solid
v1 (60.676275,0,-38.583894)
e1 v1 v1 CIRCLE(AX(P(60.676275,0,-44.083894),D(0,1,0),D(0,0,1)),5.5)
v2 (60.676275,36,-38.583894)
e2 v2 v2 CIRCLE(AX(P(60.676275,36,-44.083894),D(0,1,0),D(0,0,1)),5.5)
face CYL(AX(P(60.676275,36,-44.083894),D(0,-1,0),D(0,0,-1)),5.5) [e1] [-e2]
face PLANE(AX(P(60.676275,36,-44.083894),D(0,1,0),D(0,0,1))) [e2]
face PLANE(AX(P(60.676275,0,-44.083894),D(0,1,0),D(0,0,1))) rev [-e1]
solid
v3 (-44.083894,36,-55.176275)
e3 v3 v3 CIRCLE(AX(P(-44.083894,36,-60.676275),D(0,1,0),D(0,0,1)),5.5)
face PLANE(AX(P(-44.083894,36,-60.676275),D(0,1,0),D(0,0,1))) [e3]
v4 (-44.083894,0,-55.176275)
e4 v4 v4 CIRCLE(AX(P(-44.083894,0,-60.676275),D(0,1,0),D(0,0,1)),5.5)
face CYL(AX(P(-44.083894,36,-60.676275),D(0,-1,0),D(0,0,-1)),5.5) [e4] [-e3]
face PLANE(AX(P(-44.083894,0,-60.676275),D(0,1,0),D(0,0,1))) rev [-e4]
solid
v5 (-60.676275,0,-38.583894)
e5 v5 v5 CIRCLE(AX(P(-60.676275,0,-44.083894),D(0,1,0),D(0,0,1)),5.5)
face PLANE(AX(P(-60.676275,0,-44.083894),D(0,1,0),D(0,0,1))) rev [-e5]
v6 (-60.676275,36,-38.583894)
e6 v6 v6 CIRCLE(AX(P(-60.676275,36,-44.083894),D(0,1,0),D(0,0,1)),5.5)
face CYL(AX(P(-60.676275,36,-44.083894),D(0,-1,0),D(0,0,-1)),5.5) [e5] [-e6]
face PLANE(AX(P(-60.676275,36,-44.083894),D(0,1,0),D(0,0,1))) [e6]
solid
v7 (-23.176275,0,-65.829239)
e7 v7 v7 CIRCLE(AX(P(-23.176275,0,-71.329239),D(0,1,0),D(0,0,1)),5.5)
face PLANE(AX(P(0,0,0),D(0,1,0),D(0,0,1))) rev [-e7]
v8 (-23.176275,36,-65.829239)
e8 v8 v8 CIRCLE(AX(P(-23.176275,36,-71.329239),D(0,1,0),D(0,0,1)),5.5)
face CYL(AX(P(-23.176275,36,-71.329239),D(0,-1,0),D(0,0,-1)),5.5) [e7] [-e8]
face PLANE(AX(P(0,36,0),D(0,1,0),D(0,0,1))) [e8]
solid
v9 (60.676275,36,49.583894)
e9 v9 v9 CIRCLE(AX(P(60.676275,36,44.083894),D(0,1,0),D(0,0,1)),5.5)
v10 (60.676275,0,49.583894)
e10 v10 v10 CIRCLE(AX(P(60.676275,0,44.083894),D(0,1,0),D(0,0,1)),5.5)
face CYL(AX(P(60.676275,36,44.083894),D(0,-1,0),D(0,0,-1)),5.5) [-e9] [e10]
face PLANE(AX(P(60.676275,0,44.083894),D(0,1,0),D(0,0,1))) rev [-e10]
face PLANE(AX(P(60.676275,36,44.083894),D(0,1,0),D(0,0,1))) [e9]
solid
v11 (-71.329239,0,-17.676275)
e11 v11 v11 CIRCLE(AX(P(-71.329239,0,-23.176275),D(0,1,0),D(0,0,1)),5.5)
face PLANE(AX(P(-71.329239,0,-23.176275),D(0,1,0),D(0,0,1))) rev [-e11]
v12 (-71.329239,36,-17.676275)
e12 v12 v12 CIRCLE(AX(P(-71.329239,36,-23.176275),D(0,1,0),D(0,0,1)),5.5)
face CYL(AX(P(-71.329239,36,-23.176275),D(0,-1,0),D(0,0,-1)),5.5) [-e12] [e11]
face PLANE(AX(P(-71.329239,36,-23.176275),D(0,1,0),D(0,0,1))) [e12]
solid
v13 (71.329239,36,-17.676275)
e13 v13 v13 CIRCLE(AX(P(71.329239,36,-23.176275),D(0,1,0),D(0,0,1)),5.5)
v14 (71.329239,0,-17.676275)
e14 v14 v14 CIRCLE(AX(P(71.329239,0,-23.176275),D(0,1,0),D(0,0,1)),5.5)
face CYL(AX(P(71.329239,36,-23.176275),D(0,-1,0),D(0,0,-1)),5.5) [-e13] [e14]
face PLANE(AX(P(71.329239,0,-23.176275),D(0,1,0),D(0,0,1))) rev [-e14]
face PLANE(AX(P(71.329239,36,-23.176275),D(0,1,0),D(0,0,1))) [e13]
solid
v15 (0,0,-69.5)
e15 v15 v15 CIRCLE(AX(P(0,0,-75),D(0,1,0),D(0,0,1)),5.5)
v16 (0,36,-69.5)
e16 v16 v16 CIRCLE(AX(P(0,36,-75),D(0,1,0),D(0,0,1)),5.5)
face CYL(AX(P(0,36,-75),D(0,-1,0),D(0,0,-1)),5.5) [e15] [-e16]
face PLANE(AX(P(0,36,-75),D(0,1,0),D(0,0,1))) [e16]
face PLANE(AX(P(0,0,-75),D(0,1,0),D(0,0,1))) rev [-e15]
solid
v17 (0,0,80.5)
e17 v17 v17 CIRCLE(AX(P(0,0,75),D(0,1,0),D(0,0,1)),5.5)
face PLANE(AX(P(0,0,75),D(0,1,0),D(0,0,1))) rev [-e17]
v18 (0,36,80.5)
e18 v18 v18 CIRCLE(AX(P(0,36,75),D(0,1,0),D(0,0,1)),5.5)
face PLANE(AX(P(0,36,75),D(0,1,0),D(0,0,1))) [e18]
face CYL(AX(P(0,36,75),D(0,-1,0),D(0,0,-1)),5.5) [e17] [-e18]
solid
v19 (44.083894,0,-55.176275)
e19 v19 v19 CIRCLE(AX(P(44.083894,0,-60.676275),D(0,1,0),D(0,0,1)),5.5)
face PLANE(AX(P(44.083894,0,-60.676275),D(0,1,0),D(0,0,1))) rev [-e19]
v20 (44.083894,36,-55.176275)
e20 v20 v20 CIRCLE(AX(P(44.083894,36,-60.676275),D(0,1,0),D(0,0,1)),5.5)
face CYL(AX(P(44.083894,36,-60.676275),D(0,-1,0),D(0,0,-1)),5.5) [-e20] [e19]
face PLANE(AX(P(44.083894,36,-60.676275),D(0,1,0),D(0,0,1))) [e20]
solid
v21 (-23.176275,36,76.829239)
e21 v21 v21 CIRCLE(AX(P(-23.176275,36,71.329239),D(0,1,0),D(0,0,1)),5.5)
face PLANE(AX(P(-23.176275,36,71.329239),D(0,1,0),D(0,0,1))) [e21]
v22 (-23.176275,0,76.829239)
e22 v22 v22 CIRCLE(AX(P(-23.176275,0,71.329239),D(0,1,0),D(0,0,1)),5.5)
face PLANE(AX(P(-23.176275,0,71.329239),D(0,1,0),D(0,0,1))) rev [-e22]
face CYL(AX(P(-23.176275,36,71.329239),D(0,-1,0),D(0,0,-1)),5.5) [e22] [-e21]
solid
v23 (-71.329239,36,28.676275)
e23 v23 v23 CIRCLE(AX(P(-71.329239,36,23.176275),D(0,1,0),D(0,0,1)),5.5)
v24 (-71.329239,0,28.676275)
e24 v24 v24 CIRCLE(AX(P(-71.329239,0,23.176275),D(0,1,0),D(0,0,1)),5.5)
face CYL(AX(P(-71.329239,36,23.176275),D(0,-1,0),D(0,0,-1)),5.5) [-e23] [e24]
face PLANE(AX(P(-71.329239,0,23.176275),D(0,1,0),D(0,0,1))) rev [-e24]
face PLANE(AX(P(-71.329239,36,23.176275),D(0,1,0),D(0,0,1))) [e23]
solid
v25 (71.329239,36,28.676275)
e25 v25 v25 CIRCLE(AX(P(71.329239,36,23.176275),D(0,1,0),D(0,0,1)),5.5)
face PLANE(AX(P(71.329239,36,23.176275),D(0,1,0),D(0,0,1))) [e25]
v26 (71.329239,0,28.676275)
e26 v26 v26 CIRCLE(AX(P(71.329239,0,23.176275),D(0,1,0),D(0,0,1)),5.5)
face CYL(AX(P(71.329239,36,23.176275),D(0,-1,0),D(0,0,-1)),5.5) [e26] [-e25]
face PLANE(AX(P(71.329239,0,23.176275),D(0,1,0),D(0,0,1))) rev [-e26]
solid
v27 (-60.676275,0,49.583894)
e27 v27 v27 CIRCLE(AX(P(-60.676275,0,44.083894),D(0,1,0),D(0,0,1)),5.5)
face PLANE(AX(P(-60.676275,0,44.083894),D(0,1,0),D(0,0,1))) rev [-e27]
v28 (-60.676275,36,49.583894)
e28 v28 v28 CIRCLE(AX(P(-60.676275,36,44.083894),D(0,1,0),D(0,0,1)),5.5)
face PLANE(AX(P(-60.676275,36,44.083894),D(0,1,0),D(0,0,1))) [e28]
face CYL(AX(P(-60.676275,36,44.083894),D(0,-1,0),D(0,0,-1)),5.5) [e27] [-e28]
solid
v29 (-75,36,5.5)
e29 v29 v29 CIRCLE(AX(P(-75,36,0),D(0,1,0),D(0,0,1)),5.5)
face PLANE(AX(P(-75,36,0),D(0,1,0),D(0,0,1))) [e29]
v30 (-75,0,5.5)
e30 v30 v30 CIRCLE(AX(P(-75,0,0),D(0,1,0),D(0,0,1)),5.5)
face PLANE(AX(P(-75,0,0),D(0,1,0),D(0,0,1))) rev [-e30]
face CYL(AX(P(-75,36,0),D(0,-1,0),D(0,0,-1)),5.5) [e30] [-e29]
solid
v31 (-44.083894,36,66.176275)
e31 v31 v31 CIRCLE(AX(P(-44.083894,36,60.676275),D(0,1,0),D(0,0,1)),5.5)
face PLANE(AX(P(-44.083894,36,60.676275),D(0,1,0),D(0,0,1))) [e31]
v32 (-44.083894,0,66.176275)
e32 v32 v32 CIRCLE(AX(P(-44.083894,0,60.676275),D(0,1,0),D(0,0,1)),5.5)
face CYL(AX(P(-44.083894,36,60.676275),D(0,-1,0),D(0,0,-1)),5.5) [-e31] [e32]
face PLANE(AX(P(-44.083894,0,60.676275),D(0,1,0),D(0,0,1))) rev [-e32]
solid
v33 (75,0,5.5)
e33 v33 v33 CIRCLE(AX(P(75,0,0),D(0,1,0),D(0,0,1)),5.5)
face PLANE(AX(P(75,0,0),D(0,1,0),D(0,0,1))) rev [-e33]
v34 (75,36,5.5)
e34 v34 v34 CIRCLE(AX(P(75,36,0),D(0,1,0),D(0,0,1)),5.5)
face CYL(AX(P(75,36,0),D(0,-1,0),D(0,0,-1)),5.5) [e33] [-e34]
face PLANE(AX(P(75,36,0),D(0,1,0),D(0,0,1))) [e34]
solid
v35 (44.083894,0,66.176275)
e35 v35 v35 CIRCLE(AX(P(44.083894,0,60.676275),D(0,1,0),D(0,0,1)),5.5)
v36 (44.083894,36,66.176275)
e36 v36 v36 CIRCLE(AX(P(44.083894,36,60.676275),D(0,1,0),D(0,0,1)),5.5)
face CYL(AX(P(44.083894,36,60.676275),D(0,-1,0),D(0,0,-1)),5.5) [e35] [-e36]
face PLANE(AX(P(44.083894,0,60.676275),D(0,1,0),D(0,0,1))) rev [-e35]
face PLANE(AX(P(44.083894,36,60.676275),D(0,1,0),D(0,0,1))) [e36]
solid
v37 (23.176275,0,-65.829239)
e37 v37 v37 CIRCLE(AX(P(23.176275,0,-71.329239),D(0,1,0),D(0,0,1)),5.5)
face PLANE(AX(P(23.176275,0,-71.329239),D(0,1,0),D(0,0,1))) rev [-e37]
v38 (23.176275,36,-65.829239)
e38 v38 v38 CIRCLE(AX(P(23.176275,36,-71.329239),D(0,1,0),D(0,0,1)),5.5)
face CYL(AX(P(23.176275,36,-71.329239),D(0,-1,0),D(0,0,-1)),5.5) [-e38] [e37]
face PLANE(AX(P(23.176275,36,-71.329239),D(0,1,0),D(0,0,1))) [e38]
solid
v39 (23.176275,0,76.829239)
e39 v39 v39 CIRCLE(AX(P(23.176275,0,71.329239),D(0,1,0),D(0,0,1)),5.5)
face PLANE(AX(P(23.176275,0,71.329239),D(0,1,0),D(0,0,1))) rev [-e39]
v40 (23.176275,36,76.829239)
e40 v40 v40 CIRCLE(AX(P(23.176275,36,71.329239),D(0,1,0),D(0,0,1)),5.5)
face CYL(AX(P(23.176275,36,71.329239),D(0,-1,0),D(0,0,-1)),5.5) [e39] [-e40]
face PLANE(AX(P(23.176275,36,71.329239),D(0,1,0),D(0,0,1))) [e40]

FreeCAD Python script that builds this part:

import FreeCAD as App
import Part
import Sketcher
from FreeCAD import Vector
Q = App.Units.Quantity

doc = App.newDocument("Part")
body = doc.addObject("PartDesign::Body", "Body")

# Sketch on XZ plane
sketch1 = doc.addObject("Sketcher::SketchObject", "Sketch")
body.addObject(sketch1)
sketch1.AttachmentSupport = (doc.XZ_Plane, [""])
sketch1.MapMode = "FlatFace"
sketch1.addGeometry(Part.Circle(Vector(75, 0, 0), Vector(0, 0, 1), 6), False)
sketch1.addConstraint([
    Sketcher.Constraint("PointOnObject", 0, 3, -1),
    Sketcher.Constraint("Diameter", 0, Q("11 mm")),
    Sketcher.Constraint("DistanceX", -1, 1, 0, 3, Q("75 mm")),
])
pad1 = doc.addObject("PartDesign::Pad", "Pad")
body.addObject(pad1)
pad1.Profile = sketch1
pad1.Length = 36
pad1.Reversed = True
body2 = doc.addObject("PartDesign::Body", "Body001")

# Sketch on XZ plane
sketch2 = doc.addObject("Sketcher::SketchObject", "Sketch001")
body2.addObject(sketch2)
sketch2.AttachmentSupport = (doc.getObject("XZ_Plane001"), [""])
sketch2.MapMode = "FlatFace"
sketch2.addGeometry(Part.Circle(Vector(71, 23, 0), Vector(0, 0, 1), 6), False)
sketch2.addConstraint([
    Sketcher.Constraint("Diameter", 0, Q("11 mm")),
    Sketcher.Constraint("DistanceX", -1, 1, 0, 3, Q("71.329239 mm")),
    Sketcher.Constraint("DistanceY", -1, 1, 0, 3, Q("23.176275 mm")),
])
pad2 = doc.addObject("PartDesign::Pad", "Pad001")
body2.addObject(pad2)
pad2.Profile = sketch2
pad2.Length = 36
pad2.Reversed = True
body3 = doc.addObject("PartDesign::Body", "Body002")

# Sketch on XZ plane
sketch3 = doc.addObject("Sketcher::SketchObject", "Sketch002")
body3.addObject(sketch3)
sketch3.AttachmentSupport = (doc.getObject("XZ_Plane002"), [""])
sketch3.MapMode = "FlatFace"
sketch3.addGeometry(Part.Circle(Vector(61, 44, 0), Vector(0, 0, 1), 6), False)
sketch3.addConstraint([
    Sketcher.Constraint("Diameter", 0, Q("11 mm")),
    Sketcher.Constraint("DistanceX", -1, 1, 0, 3, Q("60.676275 mm")),
    Sketcher.Constraint("DistanceY", -1, 1, 0, 3, Q("44.083894 mm")),
])
pad3 = doc.addObject("PartDesign::Pad", "Pad002")
body3.addObject(pad3)
pad3.Profile = sketch3
pad3.Length = 36
pad3.Reversed = True
body4 = doc.addObject("PartDesign::Body", "Body003")

# Sketch on XZ plane
sketch4 = doc.addObject("Sketcher::SketchObject", "Sketch003")
body4.addObject(sketch4)
sketch4.AttachmentSupport = (doc.getObject("XZ_Plane003"), [""])
sketch4.MapMode = "FlatFace"
sketch4.addGeometry(Part.Circle(Vector(44, 61, 0), Vector(0, 0, 1), 6), False)
sketch4.addConstraint([
    Sketcher.Constraint("Diameter", 0, Q("11 mm")),
    Sketcher.Constraint("DistanceX", -1, 1, 0, 3, Q("44.083894 mm")),
    Sketcher.Constraint("DistanceY", -1, 1, 0, 3, Q("60.676275 mm")),
])
pad4 = doc.addObject("PartDesign::Pad", "Pad003")
body4.addObject(pad4)
pad4.Profile = sketch4
pad4.Length = 36
pad4.Reversed = True
body5 = doc.addObject("PartDesign::Body", "Body004")

# Sketch on XZ plane
sketch5 = doc.addObject("Sketcher::SketchObject", "Sketch004")
body5.addObject(sketch5)
sketch5.AttachmentSupport = (doc.getObject("XZ_Plane004"), [""])
sketch5.MapMode = "FlatFace"
sketch5.addGeometry(Part.Circle(Vector(23, 71, 0), Vector(0, 0, 1), 6), False)
sketch5.addConstraint([
    Sketcher.Constraint("Diameter", 0, Q("11 mm")),
    Sketcher.Constraint("DistanceY", -1, 1, 0, 3, Q("71.329239 mm")),
    Sketcher.Constraint("DistanceX", -1, 1, 0, 3, Q("23.176275 mm")),
])
pad5 = doc.addObject("PartDesign::Pad", "Pad004")
body5.addObject(pad5)
pad5.Profile = sketch5
pad5.Length = 36
pad5.Reversed = True
body6 = doc.addObject("PartDesign::Body", "Body005")

# Sketch on XZ plane
sketch6 = doc.addObject("Sketcher::SketchObject", "Sketch005")
body6.addObject(sketch6)
sketch6.AttachmentSupport = (doc.getObject("XZ_Plane005"), [""])
sketch6.MapMode = "FlatFace"
sketch6.addGeometry(Part.Circle(Vector(0, 75, 0), Vector(0, 0, 1), 6), False)
sketch6.addConstraint([
    Sketcher.Constraint("PointOnObject", 0, 3, -2),
    Sketcher.Constraint("Diameter", 0, Q("11 mm")),
    Sketcher.Constraint("DistanceY", -1, 1, 0, 3, Q("75 mm")),
])
pad6 = doc.addObject("PartDesign::Pad", "Pad005")
body6.addObject(pad6)
pad6.Profile = sketch6
pad6.Length = 36
pad6.Reversed = True
body7 = doc.addObject("PartDesign::Body", "Body006")

# Sketch on XZ plane
sketch7 = doc.addObject("Sketcher::SketchObject", "Sketch006")
body7.addObject(sketch7)
sketch7.AttachmentSupport = (doc.getObject("XZ_Plane006"), [""])
sketch7.MapMode = "FlatFace"
sketch7.addGeometry(Part.Circle(Vector(-23, 71, 0), Vector(0, 0, 1), 6), False)
sketch7.addConstraint([
    Sketcher.Constraint("Diameter", 0, Q("11 mm")),
    Sketcher.Constraint("DistanceY", -1, 1, 0, 3, Q("71.329239 mm")),
    Sketcher.Constraint("DistanceX", 0, 3, -1, 1, Q("23.176275 mm")),
])
pad7 = doc.addObject("PartDesign::Pad", "Pad006")
body7.addObject(pad7)
pad7.Profile = sketch7
pad7.Length = 36
pad7.Reversed = True
body8 = doc.addObject("PartDesign::Body", "Body007")

# Sketch on XZ plane
sketch8 = doc.addObject("Sketcher::SketchObject", "Sketch007")
body8.addObject(sketch8)
sketch8.AttachmentSupport = (doc.getObject("XZ_Plane007"), [""])
sketch8.MapMode = "FlatFace"
sketch8.addGeometry(Part.Circle(Vector(-44, 61, 0), Vector(0, 0, 1), 6), False)
sketch8.addConstraint([
    Sketcher.Constraint("Diameter", 0, Q("11 mm")),
    Sketcher.Constraint("DistanceX", 0, 3, -1, 1, Q("44.083894 mm")),
    Sketcher.Constraint("DistanceY", -1, 1, 0, 3, Q("60.676275 mm")),
])
pad8 = doc.addObject("PartDesign::Pad", "Pad007")
body8.addObject(pad8)
pad8.Profile = sketch8
pad8.Length = 36
pad8.Reversed = True
body9 = doc.addObject("PartDesign::Body", "Body008")

# Sketch on XZ plane
sketch9 = doc.addObject("Sketcher::SketchObject", "Sketch008")
body9.addObject(sketch9)
sketch9.AttachmentSupport = (doc.getObject("XZ_Plane008"), [""])
sketch9.MapMode = "FlatFace"
sketch9.addGeometry(Part.Circle(Vector(-61, 44, 0), Vector(0, 0, 1), 6), False)
sketch9.addConstraint([
    Sketcher.Constraint("Diameter", 0, Q("11 mm")),
    Sketcher.Constraint("DistanceX", 0, 3, -1, 1, Q("60.676275 mm")),
    Sketcher.Constraint("DistanceY", -1, 1, 0, 3, Q("44.083894 mm")),
])
pad9 = doc.addObject("PartDesign::Pad", "Pad008")
body9.addObject(pad9)
pad9.Profile = sketch9
pad9.Length = 36
pad9.Reversed = True
body10 = doc.addObject("PartDesign::Body", "Body009")

# Sketch on XZ plane
sketch10 = doc.addObject("Sketcher::SketchObject", "Sketch009")
body10.addObject(sketch10)
sketch10.AttachmentSupport = (doc.getObject("XZ_Plane009"), [""])
sketch10.MapMode = "FlatFace"
sketch10.addGeometry(Part.Circle(Vector(-71, 23, 0), Vector(0, 0, 1), 6), False)
sketch10.addConstraint([
    Sketcher.Constraint("Diameter", 0, Q("11 mm")),
    Sketcher.Constraint("DistanceX", 0, 3, -1, 1, Q("71.329239 mm")),
    Sketcher.Constraint("DistanceY", -1, 1, 0, 3, Q("23.176275 mm")),
])
pad10 = doc.addObject("PartDesign::Pad", "Pad009")
body10.addObject(pad10)
pad10.Profile = sketch10
pad10.Length = 36
pad10.Reversed = True
body11 = doc.addObject("PartDesign::Body", "Body010")

# Sketch on XZ plane
sketch11 = doc.addObject("Sketcher::SketchObject", "Sketch010")
body11.addObject(sketch11)
sketch11.AttachmentSupport = (doc.getObject("XZ_Plane010"), [""])
sketch11.MapMode = "FlatFace"
sketch11.addGeometry(Part.Circle(Vector(-75, 0, 0), Vector(0, 0, 1), 6), False)
sketch11.addConstraint([
    Sketcher.Constraint("PointOnObject", 0, 3, -1),
    Sketcher.Constraint("Diameter", 0, Q("11 mm")),
    Sketcher.Constraint("DistanceX", 0, 3, -1, 1, Q("75 mm")),
])
pad11 = doc.addObject("PartDesign::Pad", "Pad010")
body11.addObject(pad11)
pad11.Profile = sketch11
pad11.Length = 36
pad11.Reversed = True
body12 = doc.addObject("PartDesign::Body", "Body011")

# Sketch on XZ plane
sketch12 = doc.addObject("Sketcher::SketchObject", "Sketch011")
body12.addObject(sketch12)
sketch12.AttachmentSupport = (doc.getObject("XZ_Plane011"), [""])
sketch12.MapMode = "FlatFace"
sketch12.addGeometry(Part.Circle(Vector(-71, -23, 0), Vector(0, 0, 1), 6), False)
sketch12.addConstraint([
    Sketcher.Constraint("Diameter", 0, Q("11 mm")),
    Sketcher.Constraint("DistanceX", 0, 3, -1, 1, Q("71.329239 mm")),
    Sketcher.Constraint("DistanceY", 0, 3, -1, 1, Q("23.176275 mm")),
])
pad12 = doc.addObject("PartDesign::Pad", "Pad011")
body12.addObject(pad12)
pad12.Profile = sketch12
pad12.Length = 36
pad12.Reversed = True
body13 = doc.addObject("PartDesign::Body", "Body012")

# Sketch on XZ plane
sketch13 = doc.addObject("Sketcher::SketchObject", "Sketch012")
body13.addObject(sketch13)
sketch13.AttachmentSupport = (doc.getObject("XZ_Plane012"), [""])
sketch13.MapMode = "FlatFace"
sketch13.addGeometry(Part.Circle(Vector(-61, -44, 0), Vector(0, 0, 1), 6), False)
sketch13.addConstraint([
    Sketcher.Constraint("Diameter", 0, Q("11 mm")),
    Sketcher.Constraint("DistanceX", 0, 3, -1, 1, Q("60.676275 mm")),
    Sketcher.Constraint("DistanceY", 0, 3, -1, 1, Q("44.083894 mm")),
])
pad13 = doc.addObject("PartDesign::Pad", "Pad012")
body13.addObject(pad13)
pad13.Profile = sketch13
pad13.Length = 36
pad13.Reversed = True
body14 = doc.addObject("PartDesign::Body", "Body013")

# Sketch on XZ plane
sketch14 = doc.addObject("Sketcher::SketchObject", "Sketch013")
body14.addObject(sketch14)
sketch14.AttachmentSupport = (doc.getObject("XZ_Plane013"), [""])
sketch14.MapMode = "FlatFace"
sketch14.addGeometry(Part.Circle(Vector(-44, -61, 0), Vector(0, 0, 1), 6), False)
sketch14.addConstraint([
    Sketcher.Constraint("Diameter", 0, Q("11 mm")),
    Sketcher.Constraint("DistanceX", 0, 3, -1, 1, Q("44.083894 mm")),
    Sketcher.Constraint("DistanceY", 0, 3, -1, 1, Q("60.676275 mm")),
])
pad14 = doc.addObject("PartDesign::Pad", "Pad013")
body14.addObject(pad14)
pad14.Profile = sketch14
pad14.Length = 36
pad14.Reversed = True
body15 = doc.addObject("PartDesign::Body", "Body014")

# Sketch on XZ plane
sketch15 = doc.addObject("Sketcher::SketchObject", "Sketch014")
body15.addObject(sketch15)
sketch15.AttachmentSupport = (doc.getObject("XZ_Plane014"), [""])
sketch15.MapMode = "FlatFace"
sketch15.addGeometry(Part.Circle(Vector(-23, -71, 0), Vector(0, 0, 1), 6), False)
sketch15.addConstraint([
    Sketcher.Constraint("Diameter", 0, Q("11 mm")),
    Sketcher.Constraint("DistanceY", 0, 3, -1, 1, Q("71.329239 mm")),
    Sketcher.Constraint("DistanceX", 0, 3, -1, 1, Q("23.176275 mm")),
])
pad15 = doc.addObject("PartDesign::Pad", "Pad014")
body15.addObject(pad15)
pad15.Profile = sketch15
pad15.Length = 36
pad15.Reversed = True
body16 = doc.addObject("PartDesign::Body", "Body015")

# Sketch on XZ plane
sketch16 = doc.addObject("Sketcher::SketchObject", "Sketch015")
body16.addObject(sketch16)
sketch16.AttachmentSupport = (doc.getObject("XZ_Plane015"), [""])
sketch16.MapMode = "FlatFace"
sketch16.addGeometry(Part.Circle(Vector(0, -75, 0), Vector(0, 0, 1), 6), False)
sketch16.addConstraint([
    Sketcher.Constraint("PointOnObject", 0, 3, -2),
    Sketcher.Constraint("Diameter", 0, Q("11 mm")),
    Sketcher.Constraint("DistanceY", 0, 3, -1, 1, Q("75 mm")),
])
pad16 = doc.addObject("PartDesign::Pad", "Pad015")
body16.addObject(pad16)
pad16.Profile = sketch16
pad16.Length = 36
pad16.Reversed = True
body17 = doc.addObject("PartDesign::Body", "Body016")

# Sketch on XZ plane
sketch17 = doc.addObject("Sketcher::SketchObject", "Sketch016")
body17.addObject(sketch17)
sketch17.AttachmentSupport = (doc.getObject("XZ_Plane016"), [""])
sketch17.MapMode = "FlatFace"
sketch17.addGeometry(Part.Circle(Vector(23, -71, 0), Vector(0, 0, 1), 6), False)
sketch17.addConstraint([
    Sketcher.Constraint("Diameter", 0, Q("11 mm")),
    Sketcher.Constraint("DistanceY", 0, 3, -1, 1, Q("71.329239 mm")),
    Sketcher.Constraint("DistanceX", -1, 1, 0, 3, Q("23.176275 mm")),
])
pad17 = doc.addObject("PartDesign::Pad", "Pad016")
body17.addObject(pad17)
pad17.Profile = sketch17
pad17.Length = 36
pad17.Reversed = True
body18 = doc.addObject("PartDesign::Body", "Body017")

# Sketch on XZ plane
sketch18 = doc.addObject("Sketcher::SketchObject", "Sketch017")
body18.addObject(sketch18)
sketch18.AttachmentSupport = (doc.getObject("XZ_Plane017"), [""])
sketch18.MapMode = "FlatFace"
sketch18.addGeometry(Part.Circle(Vector(44, -61, 0), Vector(0, 0, 1), 6), False)
sketch18.addConstraint([
    Sketcher.Constraint("Diameter", 0, Q("11 mm")),
    Sketcher.Constraint("DistanceX", -1, 1, 0, 3, Q("44.083894 mm")),
    Sketcher.Constraint("DistanceY", 0, 3, -1, 1, Q("60.676275 mm")),
])
pad18 = doc.addObject("PartDesign::Pad", "Pad017")
body18.addObject(pad18)
pad18.Profile = sketch18
pad18.Length = 36
pad18.Reversed = True
body19 = doc.addObject("PartDesign::Body", "Body018")

# Sketch on XZ plane
sketch19 = doc.addObject("Sketcher::SketchObject", "Sketch018")
body19.addObject(sketch19)
sketch19.AttachmentSupport = (doc.getObject("XZ_Plane018"), [""])
sketch19.MapMode = "FlatFace"
sketch19.addGeometry(Part.Circle(Vector(61, -44, 0), Vector(0, 0, 1), 6), False)
sketch19.addConstraint([
    Sketcher.Constraint("Diameter", 0, Q("11 mm")),
    Sketcher.Constraint("DistanceX", -1, 1, 0, 3, Q("60.676275 mm")),
    Sketcher.Constraint("DistanceY", 0, 3, -1, 1, Q("44.083894 mm")),
])
pad19 = doc.addObject("PartDesign::Pad", "Pad018")
body19.addObject(pad19)
pad19.Profile = sketch19
pad19.Length = 36
pad19.Reversed = True
body20 = doc.addObject("PartDesign::Body", "Body019")

# Sketch on XZ plane
sketch20 = doc.addObject("Sketcher::SketchObject", "Sketch019")
body20.addObject(sketch20)
sketch20.AttachmentSupport = (doc.getObject("XZ_Plane019"), [""])
sketch20.MapMode = "FlatFace"
sketch20.addGeometry(Part.Circle(Vector(71, -23, 0), Vector(0, 0, 1), 6), False)
sketch20.addConstraint([
    Sketcher.Constraint("Diameter", 0, Q("11 mm")),
    Sketcher.Constraint("DistanceX", -1, 1, 0, 3, Q("71.329239 mm")),
    Sketcher.Constraint("DistanceY", 0, 3, -1, 1, Q("23.176275 mm")),
])
pad20 = doc.addObject("PartDesign::Pad", "Pad019")
body20.addObject(pad20)
pad20.Profile = sketch20
pad20.Length = 36
pad20.Reversed = True

doc.recompute()
